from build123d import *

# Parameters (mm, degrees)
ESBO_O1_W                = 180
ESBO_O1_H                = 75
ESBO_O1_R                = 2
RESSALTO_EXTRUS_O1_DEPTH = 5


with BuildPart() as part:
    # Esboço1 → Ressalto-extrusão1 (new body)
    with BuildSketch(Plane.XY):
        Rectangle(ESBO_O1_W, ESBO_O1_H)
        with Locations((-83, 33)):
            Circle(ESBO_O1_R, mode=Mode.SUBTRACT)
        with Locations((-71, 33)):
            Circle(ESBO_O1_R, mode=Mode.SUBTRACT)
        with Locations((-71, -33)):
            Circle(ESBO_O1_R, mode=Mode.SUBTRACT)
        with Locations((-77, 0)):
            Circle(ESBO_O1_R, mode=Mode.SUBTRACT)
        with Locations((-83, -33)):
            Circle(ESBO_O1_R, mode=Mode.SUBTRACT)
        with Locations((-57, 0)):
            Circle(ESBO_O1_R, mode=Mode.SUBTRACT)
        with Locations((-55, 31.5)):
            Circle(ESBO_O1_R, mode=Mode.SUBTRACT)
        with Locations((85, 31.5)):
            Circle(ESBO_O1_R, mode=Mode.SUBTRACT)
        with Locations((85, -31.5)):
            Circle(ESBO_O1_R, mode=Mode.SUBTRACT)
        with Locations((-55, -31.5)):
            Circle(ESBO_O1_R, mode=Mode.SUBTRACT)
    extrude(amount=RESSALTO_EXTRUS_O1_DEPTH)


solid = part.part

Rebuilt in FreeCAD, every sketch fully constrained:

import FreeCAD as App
import Part
import Sketcher

V = App.Vector

doc = App.newDocument("Part")
params = doc.addObject("Spreadsheet::Sheet", "Params")
for row, (alias, value) in enumerate([
    ("sketch1_diameter", "4 mm"),
    ("sketch1_width", "180 mm"),
    ("sketch1_height", "75 mm"),
    ("pad1_length", "5 mm"),
], start=1):
    params.set(f"A{row}", alias)
    params.set(f"B{row}", "=" + value)
    params.setAlias(f"B{row}", alias)

body = doc.addObject("PartDesign::Body", "Body")

# Sketch on XY plane
sketch1 = body.newObject("Sketcher::SketchObject", "Sketch")
sketch1.AttachmentSupport = (doc.getObject("XY_Plane"), [""])
sketch1.MapMode = "FlatFace"
sketch1.addGeometry([
    Part.LineSegment(V(-90, 37.5, 0), V(-90, -37.5, 0)),  # 0
    Part.LineSegment(V(-90, -37.5, 0), V(90, -37.5, 0)),  # 1
    Part.LineSegment(V(90, -37.5, 0), V(90, 37.5, 0)),  # 2
    Part.LineSegment(V(90, 37.5, 0), V(-90, 37.5, 0)),  # 3
    Part.Circle(V(-83, -33, 0), V(0, 0, 1), 2),  # 4
    Part.Circle(V(-71, -33, 0), V(0, 0, 1), 2),  # 5
    Part.Circle(V(-55, -31.5, 0), V(0, 0, 1), 2),  # 6
    Part.Circle(V(85, -31.5, 0), V(0, 0, 1), 2),  # 7
    Part.Circle(V(-77, 0, 0), V(0, 0, 1), 2),  # 8
    Part.Circle(V(-57, 0, 0), V(0, 0, 1), 2),  # 9
    Part.Circle(V(-83, 33, 0), V(0, 0, 1), 2),  # 10
    Part.Circle(V(-71, 33, 0), V(0, 0, 1), 2),  # 11
    Part.Circle(V(-55, 31.5, 0), V(0, 0, 1), 2),  # 12
    Part.Circle(V(85, 31.5, 0), V(0, 0, 1), 2),  # 13
], False)
sketch1.addConstraint([
    Sketcher.Constraint("Coincident", 0, 2, 1, 1),
    Sketcher.Constraint("Coincident", 1, 2, 2, 1),
    Sketcher.Constraint("Coincident", 2, 2, 3, 1),
    Sketcher.Constraint("Coincident", 3, 2, 0, 1),
    Sketcher.Constraint("Vertical", 0),
    Sketcher.Constraint("Horizontal", 1),
    Sketcher.Constraint("Vertical", 2),
    Sketcher.Constraint("Horizontal", 3),
    Sketcher.Constraint("Equal", 4, 5),
    Sketcher.Constraint("Equal", 5, 6),
    Sketcher.Constraint("Equal", 6, 7),
    Sketcher.Constraint("Equal", 7, 8),
    Sketcher.Constraint("Equal", 8, 9),
    Sketcher.Constraint("Equal", 9, 10),
    Sketcher.Constraint("Equal", 10, 11),
    Sketcher.Constraint("Equal", 11, 12),
    Sketcher.Constraint("Equal", 12, 13),
    Sketcher.Constraint("Symmetric", 0, 2, 2, 2, -1, 1),
    Sketcher.Constraint("Symmetric", 4, 3, 10, 3, -1),
    Sketcher.Constraint("Symmetric", 5, 3, 11, 3, -1),
    Sketcher.Constraint("Symmetric", 6, 3, 12, 3, -1),
    Sketcher.Constraint("Symmetric", 7, 3, 13, 3, -1),
    Sketcher.Constraint("PointOnObject", 8, 3, -1),
    Sketcher.Constraint("PointOnObject", 9, 3, -1),
    Sketcher.Constraint("Horizontal", 4, 3, 5, 3),
    Sketcher.Constraint("Horizontal", 6, 3, 7, 3),
    Sketcher.Constraint("Diameter", 4, 4.0),
    Sketcher.Constraint("DistanceX", 1, 1, 1, 2, 180.0),
    Sketcher.Constraint("DistanceY", 0, 2, 0, 1, 75.0),
    Sketcher.Constraint("DistanceX", 4, 3, -1, 1, 83.0),
    Sketcher.Constraint("DistanceY", 4, 3, -1, 1, 33.0),
    Sketcher.Constraint("DistanceX", 5, 3, -1, 1, 71.0),
    Sketcher.Constraint("DistanceX", 6, 3, -1, 1, 55.0),
    Sketcher.Constraint("DistanceX", -1, 1, 7, 3, 85.0),
    Sketcher.Constraint("DistanceX", 8, 3, -1, 1, 77.0),
    Sketcher.Constraint("DistanceX", 9, 3, -1, 1, 57.0),
    Sketcher.Constraint("DistanceY", 6, 3, 12, 3, 63.0),
])
sketch1.setExpression("Constraints[26]", "Params.sketch1_diameter")
sketch1.setExpression("Constraints[27]", "Params.sketch1_width")
sketch1.setExpression("Constraints[28]", "Params.sketch1_height")
pad1 = body.newObject("PartDesign::Pad", "Pad")
pad1.Profile = sketch1
pad1.setExpression("Length", "Params.pad1_length")

doc.recompute()
